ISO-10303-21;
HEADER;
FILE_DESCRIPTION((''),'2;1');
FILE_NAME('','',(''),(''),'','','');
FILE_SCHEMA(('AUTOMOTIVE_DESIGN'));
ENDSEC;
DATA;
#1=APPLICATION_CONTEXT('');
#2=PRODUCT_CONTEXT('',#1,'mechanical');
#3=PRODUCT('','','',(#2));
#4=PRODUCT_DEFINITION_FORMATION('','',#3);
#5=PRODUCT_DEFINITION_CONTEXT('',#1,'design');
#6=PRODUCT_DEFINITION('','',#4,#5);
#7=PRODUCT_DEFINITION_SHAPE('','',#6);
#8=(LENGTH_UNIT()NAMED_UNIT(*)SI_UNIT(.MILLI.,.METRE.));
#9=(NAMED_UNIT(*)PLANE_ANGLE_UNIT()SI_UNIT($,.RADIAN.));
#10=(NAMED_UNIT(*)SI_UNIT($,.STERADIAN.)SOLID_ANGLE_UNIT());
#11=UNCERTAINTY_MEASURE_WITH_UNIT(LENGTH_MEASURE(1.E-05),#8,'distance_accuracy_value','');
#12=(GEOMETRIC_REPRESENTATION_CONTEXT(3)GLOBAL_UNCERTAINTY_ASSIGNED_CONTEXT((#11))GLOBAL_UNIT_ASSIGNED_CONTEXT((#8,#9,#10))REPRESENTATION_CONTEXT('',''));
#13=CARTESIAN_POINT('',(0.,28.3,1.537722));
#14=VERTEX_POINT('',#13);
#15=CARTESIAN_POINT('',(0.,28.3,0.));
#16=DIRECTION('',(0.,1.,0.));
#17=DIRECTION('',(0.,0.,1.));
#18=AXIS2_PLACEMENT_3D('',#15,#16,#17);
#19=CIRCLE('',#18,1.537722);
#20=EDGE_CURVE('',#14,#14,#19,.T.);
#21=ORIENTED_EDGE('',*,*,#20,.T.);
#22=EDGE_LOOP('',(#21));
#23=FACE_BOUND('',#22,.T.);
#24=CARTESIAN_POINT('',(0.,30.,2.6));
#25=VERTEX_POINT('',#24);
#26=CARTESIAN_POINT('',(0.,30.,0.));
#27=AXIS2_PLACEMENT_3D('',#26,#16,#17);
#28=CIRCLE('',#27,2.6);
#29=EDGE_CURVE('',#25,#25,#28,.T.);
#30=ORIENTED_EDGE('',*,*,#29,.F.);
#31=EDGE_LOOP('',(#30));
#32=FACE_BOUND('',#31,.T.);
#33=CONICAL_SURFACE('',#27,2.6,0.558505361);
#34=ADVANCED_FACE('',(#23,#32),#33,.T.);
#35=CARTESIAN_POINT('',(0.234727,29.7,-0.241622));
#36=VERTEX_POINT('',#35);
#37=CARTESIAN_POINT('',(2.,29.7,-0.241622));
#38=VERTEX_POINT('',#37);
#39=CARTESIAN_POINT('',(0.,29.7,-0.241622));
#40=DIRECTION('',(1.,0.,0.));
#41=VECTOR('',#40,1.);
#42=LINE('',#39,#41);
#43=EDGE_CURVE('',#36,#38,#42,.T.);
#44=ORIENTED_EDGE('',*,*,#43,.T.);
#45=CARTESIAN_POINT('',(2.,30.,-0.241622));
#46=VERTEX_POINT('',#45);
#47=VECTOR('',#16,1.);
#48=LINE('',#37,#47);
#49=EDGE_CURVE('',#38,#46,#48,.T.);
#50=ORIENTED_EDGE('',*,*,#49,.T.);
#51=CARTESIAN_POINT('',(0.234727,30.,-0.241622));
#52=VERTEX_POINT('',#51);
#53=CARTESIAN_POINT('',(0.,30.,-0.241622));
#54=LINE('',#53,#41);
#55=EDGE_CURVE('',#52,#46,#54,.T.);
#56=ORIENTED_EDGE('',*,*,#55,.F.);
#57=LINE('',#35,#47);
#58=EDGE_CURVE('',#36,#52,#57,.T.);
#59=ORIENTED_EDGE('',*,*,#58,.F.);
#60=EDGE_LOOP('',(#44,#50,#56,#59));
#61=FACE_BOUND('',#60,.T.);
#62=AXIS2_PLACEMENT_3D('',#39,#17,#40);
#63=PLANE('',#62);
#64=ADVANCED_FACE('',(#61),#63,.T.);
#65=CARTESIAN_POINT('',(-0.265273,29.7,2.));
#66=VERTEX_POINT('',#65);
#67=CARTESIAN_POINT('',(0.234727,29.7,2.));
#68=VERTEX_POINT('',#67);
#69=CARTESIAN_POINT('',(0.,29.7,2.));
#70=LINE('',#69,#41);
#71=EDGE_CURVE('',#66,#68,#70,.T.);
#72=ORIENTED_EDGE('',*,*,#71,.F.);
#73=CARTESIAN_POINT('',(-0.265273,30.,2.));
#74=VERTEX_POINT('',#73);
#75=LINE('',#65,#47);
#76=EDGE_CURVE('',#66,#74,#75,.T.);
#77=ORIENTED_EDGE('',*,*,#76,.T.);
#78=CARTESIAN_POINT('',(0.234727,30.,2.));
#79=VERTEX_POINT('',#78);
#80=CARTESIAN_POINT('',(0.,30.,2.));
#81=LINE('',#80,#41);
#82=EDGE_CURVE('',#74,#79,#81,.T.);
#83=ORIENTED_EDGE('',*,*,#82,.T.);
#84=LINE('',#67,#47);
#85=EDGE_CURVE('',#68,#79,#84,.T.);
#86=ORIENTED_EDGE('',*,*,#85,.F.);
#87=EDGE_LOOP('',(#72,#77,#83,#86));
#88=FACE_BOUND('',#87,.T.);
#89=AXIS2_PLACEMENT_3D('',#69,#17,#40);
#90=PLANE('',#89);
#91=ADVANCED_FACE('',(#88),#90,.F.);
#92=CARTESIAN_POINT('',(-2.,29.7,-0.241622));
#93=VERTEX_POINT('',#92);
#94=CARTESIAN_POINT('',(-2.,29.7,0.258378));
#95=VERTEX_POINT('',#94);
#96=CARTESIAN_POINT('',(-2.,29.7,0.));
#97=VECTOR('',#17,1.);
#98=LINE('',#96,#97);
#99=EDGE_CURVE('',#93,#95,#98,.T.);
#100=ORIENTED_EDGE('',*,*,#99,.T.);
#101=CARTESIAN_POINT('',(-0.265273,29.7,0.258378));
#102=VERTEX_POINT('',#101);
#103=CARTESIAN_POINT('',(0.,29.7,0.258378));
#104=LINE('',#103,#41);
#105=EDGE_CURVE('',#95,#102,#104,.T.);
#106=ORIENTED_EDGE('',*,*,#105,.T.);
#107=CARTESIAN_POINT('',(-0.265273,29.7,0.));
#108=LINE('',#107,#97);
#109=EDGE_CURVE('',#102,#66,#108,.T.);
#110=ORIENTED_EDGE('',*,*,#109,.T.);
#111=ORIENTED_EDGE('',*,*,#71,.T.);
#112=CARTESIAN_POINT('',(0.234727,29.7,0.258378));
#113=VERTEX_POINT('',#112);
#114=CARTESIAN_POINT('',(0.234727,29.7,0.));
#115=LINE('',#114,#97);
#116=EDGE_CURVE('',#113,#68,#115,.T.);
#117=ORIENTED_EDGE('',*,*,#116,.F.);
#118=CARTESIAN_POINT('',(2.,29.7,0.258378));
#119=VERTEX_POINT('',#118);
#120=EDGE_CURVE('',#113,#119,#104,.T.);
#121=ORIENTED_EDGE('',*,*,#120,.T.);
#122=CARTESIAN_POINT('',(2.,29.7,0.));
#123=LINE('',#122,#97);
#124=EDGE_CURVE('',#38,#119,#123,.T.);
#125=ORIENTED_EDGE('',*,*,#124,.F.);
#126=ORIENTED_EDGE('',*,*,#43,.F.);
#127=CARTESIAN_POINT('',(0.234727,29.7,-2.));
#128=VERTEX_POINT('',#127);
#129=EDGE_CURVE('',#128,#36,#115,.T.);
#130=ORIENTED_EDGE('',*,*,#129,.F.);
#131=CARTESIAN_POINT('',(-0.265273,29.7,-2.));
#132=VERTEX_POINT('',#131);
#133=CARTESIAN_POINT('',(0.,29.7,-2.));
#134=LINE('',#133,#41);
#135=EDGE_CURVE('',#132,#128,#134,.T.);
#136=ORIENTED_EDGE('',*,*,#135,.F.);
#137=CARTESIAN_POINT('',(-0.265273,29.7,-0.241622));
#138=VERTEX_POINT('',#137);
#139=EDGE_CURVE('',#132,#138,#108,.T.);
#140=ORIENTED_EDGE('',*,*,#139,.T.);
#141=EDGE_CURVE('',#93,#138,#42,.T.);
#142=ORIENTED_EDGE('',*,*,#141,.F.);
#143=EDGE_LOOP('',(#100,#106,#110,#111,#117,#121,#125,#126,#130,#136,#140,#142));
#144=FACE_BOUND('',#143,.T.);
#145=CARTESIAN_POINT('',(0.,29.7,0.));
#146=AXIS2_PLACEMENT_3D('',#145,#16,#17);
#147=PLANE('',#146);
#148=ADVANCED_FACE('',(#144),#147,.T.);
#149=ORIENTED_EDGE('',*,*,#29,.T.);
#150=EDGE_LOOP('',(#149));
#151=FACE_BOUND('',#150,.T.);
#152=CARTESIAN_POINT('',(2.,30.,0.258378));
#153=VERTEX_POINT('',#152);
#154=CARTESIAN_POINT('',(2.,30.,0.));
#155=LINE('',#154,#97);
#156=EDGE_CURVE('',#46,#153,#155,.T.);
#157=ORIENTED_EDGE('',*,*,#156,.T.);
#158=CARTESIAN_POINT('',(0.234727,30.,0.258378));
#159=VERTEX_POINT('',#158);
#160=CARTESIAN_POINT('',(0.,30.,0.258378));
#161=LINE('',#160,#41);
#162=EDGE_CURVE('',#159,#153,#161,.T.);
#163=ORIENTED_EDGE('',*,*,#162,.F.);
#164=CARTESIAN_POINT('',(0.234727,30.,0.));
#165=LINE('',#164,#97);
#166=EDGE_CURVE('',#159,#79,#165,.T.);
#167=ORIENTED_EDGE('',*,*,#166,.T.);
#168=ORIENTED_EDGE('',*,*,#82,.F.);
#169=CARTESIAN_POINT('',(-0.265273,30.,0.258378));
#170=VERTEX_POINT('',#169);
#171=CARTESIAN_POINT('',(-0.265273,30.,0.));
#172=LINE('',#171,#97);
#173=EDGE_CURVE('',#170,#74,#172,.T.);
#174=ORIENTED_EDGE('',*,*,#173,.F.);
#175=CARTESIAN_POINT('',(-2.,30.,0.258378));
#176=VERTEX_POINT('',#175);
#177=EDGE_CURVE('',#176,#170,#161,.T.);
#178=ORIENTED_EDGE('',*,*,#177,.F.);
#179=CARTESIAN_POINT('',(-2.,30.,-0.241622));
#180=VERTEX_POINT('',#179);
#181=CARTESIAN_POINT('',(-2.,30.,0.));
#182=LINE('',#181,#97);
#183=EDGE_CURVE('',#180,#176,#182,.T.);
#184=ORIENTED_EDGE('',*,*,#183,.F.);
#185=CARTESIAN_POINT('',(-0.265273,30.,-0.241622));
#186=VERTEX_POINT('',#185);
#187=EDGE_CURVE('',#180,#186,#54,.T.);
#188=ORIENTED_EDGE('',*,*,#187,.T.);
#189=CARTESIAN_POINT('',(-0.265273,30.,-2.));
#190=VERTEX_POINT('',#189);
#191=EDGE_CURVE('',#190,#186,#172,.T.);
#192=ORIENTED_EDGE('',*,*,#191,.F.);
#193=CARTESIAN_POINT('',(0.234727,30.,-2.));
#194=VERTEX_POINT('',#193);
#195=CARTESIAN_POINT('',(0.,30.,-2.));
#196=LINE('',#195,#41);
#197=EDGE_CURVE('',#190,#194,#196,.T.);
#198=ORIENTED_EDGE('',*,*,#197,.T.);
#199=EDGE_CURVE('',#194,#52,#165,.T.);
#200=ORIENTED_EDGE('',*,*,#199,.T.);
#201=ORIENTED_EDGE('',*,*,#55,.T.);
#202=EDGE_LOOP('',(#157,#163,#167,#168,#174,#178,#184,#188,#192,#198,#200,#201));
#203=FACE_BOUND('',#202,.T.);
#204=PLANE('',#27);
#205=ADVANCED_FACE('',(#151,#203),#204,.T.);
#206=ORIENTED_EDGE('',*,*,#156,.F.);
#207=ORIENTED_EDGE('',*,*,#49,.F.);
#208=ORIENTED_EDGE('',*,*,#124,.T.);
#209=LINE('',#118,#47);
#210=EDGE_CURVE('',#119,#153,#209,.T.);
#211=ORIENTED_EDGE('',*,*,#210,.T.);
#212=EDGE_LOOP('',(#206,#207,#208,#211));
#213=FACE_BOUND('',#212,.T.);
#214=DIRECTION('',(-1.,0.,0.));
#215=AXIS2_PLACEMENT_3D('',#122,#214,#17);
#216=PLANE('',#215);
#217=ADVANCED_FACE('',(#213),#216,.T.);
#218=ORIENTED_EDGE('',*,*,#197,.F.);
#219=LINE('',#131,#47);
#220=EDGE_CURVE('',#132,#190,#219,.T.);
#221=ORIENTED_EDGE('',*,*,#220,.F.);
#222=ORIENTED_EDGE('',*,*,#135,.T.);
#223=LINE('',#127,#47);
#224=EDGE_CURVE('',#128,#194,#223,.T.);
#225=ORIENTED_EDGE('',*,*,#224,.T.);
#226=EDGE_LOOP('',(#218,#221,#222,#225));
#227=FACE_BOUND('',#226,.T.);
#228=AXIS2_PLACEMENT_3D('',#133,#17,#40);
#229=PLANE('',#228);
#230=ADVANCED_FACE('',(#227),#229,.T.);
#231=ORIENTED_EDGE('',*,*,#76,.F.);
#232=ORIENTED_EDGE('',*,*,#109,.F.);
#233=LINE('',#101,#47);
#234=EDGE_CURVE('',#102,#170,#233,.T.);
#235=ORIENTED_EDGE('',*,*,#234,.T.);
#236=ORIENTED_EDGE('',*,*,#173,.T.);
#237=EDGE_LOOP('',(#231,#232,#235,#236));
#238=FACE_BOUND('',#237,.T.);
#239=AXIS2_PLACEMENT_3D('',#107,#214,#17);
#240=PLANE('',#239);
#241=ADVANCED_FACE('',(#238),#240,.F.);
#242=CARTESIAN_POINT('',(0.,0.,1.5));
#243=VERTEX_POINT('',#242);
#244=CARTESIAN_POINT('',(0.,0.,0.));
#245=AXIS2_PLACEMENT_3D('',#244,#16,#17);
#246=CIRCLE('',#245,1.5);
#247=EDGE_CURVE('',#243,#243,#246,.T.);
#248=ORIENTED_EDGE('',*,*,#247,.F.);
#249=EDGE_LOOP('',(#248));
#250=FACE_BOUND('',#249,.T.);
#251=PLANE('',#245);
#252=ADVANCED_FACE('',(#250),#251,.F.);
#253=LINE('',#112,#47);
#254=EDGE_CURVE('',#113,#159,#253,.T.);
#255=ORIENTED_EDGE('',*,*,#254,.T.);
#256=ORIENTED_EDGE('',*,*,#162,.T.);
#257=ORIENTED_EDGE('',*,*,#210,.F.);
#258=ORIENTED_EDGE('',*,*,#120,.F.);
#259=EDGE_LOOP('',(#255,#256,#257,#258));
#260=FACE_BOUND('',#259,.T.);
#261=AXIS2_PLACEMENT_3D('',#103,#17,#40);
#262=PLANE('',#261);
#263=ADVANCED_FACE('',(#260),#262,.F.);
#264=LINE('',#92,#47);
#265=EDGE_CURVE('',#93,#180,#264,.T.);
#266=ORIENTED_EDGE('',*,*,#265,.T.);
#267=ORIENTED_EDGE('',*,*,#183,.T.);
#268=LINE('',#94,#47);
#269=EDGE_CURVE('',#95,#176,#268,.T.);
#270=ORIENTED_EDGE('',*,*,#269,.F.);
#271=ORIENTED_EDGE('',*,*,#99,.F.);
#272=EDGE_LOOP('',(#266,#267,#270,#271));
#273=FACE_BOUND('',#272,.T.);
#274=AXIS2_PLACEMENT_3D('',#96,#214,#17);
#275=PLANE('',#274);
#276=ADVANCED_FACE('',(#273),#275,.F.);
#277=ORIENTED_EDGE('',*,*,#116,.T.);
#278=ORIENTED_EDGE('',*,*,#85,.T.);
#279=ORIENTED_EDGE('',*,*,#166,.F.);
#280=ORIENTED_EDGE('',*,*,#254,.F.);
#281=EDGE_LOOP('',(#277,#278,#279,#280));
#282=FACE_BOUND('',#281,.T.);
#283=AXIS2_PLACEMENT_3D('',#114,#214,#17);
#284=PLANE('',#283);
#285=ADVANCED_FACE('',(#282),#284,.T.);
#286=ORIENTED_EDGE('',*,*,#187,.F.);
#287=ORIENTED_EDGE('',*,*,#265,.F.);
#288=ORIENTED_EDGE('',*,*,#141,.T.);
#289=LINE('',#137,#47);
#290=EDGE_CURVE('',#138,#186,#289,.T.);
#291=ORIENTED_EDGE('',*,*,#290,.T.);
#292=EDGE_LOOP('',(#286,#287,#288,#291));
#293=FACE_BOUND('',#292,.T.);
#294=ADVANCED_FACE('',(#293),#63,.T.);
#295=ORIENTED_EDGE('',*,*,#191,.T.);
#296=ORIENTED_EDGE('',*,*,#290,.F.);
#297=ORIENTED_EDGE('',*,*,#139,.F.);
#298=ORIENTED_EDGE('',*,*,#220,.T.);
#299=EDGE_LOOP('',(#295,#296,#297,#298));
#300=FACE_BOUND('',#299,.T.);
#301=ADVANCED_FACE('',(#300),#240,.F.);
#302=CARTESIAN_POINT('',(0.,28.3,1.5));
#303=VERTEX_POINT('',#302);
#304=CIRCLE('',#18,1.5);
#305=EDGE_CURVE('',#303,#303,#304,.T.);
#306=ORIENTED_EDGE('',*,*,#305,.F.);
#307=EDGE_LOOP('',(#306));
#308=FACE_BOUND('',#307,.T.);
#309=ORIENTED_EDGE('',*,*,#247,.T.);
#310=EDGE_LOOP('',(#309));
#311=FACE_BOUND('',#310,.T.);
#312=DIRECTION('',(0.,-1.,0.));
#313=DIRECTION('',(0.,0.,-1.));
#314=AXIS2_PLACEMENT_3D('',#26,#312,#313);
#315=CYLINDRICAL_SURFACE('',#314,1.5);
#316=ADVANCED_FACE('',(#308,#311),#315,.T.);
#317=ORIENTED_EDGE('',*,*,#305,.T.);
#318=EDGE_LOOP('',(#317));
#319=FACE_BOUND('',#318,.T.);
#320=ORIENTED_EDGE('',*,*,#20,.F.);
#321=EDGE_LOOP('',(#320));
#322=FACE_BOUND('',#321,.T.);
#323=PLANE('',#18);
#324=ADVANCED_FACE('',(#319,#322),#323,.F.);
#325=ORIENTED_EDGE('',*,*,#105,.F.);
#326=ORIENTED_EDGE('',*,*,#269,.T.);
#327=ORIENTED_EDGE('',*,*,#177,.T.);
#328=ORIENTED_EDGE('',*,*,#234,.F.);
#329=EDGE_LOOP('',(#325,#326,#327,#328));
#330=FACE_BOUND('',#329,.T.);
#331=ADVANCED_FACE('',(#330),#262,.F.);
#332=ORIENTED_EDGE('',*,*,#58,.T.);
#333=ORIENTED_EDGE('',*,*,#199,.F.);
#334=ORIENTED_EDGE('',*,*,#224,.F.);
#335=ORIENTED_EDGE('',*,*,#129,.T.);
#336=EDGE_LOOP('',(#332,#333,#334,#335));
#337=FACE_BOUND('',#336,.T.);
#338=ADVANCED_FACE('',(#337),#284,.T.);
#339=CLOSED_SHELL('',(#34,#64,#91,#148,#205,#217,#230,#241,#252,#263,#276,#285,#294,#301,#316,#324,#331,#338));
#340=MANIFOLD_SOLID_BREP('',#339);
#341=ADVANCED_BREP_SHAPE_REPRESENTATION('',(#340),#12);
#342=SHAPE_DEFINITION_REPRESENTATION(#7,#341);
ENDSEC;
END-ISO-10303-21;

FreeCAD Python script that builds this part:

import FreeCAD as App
import Part
import Sketcher

doc = App.newDocument("Part")
body = doc.addObject("PartDesign::Body", "Body")

sketch1 = body.newObject("Sketcher::SketchObject", "Sketch")
sketch1.AttachmentSupport = (doc.getObject("XZ_Plane"), [""])
sketch1.MapMode = "FlatFace"
sketch1.addGeometry(Part.Circle(App.Vector(0, 0, 0), App.Vector(0, 0, 1), 1.5), False)
sketch1.addConstraint([
    Sketcher.Constraint("Coincident", 0, 3, -1, 1),
    Sketcher.Constraint("Diameter", 0, 3.0),
])
pad1 = body.newObject("PartDesign::Pad", "Pad")
pad1.Profile = sketch1
pad1.Length = 30
pad1.Reversed = True

sketch2 = body.newObject("Sketcher::SketchObject", "Sketch001")
sketch2.AttachmentSupport = (doc.getObject("XZ_Plane"), [""])
sketch2.MapMode = "FlatFace"
sketch2.AttachmentOffset = App.Placement(App.Vector(0, 0, -30), App.Rotation())
sketch2.addGeometry(Part.Circle(App.Vector(0, 0, 0), App.Vector(0, 0, 1), 2.6), False)
sketch2.addConstraint([
    Sketcher.Constraint("Coincident", 0, 3, -1, 1),
    Sketcher.Constraint("Diameter", 0, 5.2),
])
pad2 = body.newObject("PartDesign::Pad", "Pad001")
pad2.Profile = sketch2
pad2.Length = 1.7
pad2.TaperAngle = -32

sketch3 = body.newObject("Sketcher::SketchObject", "Sketch002")
sketch3.AttachmentSupport = (doc.getObject("XZ_Plane"), [""])
sketch3.MapMode = "FlatFace"
sketch3.AttachmentOffset = App.Placement(App.Vector(0, 0, -30), App.Rotation())
sketch3.addGeometry([
    Part.LineSegment(App.Vector(-0.3, -2, 0), App.Vector(-0.3, -0.2, 0)),
    Part.LineSegment(App.Vector(-0.3, -0.2, 0), App.Vector(-2, -0.2, 0)),
    Part.LineSegment(App.Vector(-2, -0.2, 0), App.Vector(-2, 0.3, 0)),
    Part.LineSegment(App.Vector(-2, 0.3, 0), App.Vector(-0.3, 0.3, 0)),
    Part.LineSegment(App.Vector(-0.3, 0.3, 0), App.Vector(-0.3, 2, 0)),
    Part.LineSegment(App.Vector(-0.3, 2, 0), App.Vector(0.2, 2, 0)),
    Part.LineSegment(App.Vector(0.2, 2, 0), App.Vector(0.2, 0.3, 0)),
    Part.LineSegment(App.Vector(0.2, 0.3, 0), App.Vector(2, 0.3, 0)),
    Part.LineSegment(App.Vector(2, 0.3, 0), App.Vector(2, -0.2, 0)),
    Part.LineSegment(App.Vector(2, -0.2, 0), App.Vector(0.2, -0.2, 0)),
    Part.LineSegment(App.Vector(0.2, -0.2, 0), App.Vector(0.2, -2, 0)),
    Part.LineSegment(App.Vector(0.2, -2, 0), App.Vector(-0.3, -2, 0)),
], False)
sketch3.addConstraint([
    Sketcher.Constraint("Coincident", 0, 2, 1, 1),
    Sketcher.Constraint("Coincident", 1, 2, 2, 1),
    Sketcher.Constraint("Coincident", 2, 2, 3, 1),
    Sketcher.Constraint("Coincident", 3, 2, 4, 1),
    Sketcher.Constraint("Coincident", 4, 2, 5, 1),
    Sketcher.Constraint("Coincident", 5, 2, 6, 1),
    Sketcher.Constraint("Coincident", 6, 2, 7, 1),
    Sketcher.Constraint("Coincident", 7, 2, 8, 1),
    Sketcher.Constraint("Coincident", 8, 2, 9, 1),
    Sketcher.Constraint("Coincident", 9, 2, 10, 1),
    Sketcher.Constraint("Coincident", 10, 2, 11, 1),
    Sketcher.Constraint("Coincident", 11, 2, 0, 1),
    Sketcher.Constraint("Vertical", 0),
    Sketcher.Constraint("Horizontal", 1),
    Sketcher.Constraint("Vertical", 2),
    Sketcher.Constraint("Horizontal", 3),
    Sketcher.Constraint("Vertical", 4),
    Sketcher.Constraint("Horizontal", 5),
    Sketcher.Constraint("Vertical", 6),
    Sketcher.Constraint("Horizontal", 7),
    Sketcher.Constraint("Vertical", 8),
    Sketcher.Constraint("Horizontal", 9),
    Sketcher.Constraint("Vertical", 10),
    Sketcher.Constraint("Horizontal", 11),
    Sketcher.Constraint("Symmetric", 2, 2, 7, 2, -2),
    Sketcher.Constraint("Symmetric", 5, 2, 10, 2, -1),
    Sketcher.Constraint("Horizontal", 1, 2, 8, 2),
    Sketcher.Constraint("Vertical", 0, 2, 3, 2),
    Sketcher.Constraint("Equal", 11, 2),
    Sketcher.Constraint("DistanceX", 5, 1, 5, 2, 0.5),
    Sketcher.Constraint("DistanceX", 1, 2, -1, 1, 2.0),
    Sketcher.Constraint("DistanceY", -1, 1, 4, 2, 2.0),
    Sketcher.Constraint("DistanceY", 0, 1, 0, 2, 1.758378),
    Sketcher.Constraint("DistanceX", 1, 2, 1, 1, 1.734727),
])
pocket1 = body.newObject("PartDesign::Pocket", "Pocket")
pocket1.Profile = sketch3
pocket1.Length = 0.3
pocket1.Reversed = True

doc.recompute()
